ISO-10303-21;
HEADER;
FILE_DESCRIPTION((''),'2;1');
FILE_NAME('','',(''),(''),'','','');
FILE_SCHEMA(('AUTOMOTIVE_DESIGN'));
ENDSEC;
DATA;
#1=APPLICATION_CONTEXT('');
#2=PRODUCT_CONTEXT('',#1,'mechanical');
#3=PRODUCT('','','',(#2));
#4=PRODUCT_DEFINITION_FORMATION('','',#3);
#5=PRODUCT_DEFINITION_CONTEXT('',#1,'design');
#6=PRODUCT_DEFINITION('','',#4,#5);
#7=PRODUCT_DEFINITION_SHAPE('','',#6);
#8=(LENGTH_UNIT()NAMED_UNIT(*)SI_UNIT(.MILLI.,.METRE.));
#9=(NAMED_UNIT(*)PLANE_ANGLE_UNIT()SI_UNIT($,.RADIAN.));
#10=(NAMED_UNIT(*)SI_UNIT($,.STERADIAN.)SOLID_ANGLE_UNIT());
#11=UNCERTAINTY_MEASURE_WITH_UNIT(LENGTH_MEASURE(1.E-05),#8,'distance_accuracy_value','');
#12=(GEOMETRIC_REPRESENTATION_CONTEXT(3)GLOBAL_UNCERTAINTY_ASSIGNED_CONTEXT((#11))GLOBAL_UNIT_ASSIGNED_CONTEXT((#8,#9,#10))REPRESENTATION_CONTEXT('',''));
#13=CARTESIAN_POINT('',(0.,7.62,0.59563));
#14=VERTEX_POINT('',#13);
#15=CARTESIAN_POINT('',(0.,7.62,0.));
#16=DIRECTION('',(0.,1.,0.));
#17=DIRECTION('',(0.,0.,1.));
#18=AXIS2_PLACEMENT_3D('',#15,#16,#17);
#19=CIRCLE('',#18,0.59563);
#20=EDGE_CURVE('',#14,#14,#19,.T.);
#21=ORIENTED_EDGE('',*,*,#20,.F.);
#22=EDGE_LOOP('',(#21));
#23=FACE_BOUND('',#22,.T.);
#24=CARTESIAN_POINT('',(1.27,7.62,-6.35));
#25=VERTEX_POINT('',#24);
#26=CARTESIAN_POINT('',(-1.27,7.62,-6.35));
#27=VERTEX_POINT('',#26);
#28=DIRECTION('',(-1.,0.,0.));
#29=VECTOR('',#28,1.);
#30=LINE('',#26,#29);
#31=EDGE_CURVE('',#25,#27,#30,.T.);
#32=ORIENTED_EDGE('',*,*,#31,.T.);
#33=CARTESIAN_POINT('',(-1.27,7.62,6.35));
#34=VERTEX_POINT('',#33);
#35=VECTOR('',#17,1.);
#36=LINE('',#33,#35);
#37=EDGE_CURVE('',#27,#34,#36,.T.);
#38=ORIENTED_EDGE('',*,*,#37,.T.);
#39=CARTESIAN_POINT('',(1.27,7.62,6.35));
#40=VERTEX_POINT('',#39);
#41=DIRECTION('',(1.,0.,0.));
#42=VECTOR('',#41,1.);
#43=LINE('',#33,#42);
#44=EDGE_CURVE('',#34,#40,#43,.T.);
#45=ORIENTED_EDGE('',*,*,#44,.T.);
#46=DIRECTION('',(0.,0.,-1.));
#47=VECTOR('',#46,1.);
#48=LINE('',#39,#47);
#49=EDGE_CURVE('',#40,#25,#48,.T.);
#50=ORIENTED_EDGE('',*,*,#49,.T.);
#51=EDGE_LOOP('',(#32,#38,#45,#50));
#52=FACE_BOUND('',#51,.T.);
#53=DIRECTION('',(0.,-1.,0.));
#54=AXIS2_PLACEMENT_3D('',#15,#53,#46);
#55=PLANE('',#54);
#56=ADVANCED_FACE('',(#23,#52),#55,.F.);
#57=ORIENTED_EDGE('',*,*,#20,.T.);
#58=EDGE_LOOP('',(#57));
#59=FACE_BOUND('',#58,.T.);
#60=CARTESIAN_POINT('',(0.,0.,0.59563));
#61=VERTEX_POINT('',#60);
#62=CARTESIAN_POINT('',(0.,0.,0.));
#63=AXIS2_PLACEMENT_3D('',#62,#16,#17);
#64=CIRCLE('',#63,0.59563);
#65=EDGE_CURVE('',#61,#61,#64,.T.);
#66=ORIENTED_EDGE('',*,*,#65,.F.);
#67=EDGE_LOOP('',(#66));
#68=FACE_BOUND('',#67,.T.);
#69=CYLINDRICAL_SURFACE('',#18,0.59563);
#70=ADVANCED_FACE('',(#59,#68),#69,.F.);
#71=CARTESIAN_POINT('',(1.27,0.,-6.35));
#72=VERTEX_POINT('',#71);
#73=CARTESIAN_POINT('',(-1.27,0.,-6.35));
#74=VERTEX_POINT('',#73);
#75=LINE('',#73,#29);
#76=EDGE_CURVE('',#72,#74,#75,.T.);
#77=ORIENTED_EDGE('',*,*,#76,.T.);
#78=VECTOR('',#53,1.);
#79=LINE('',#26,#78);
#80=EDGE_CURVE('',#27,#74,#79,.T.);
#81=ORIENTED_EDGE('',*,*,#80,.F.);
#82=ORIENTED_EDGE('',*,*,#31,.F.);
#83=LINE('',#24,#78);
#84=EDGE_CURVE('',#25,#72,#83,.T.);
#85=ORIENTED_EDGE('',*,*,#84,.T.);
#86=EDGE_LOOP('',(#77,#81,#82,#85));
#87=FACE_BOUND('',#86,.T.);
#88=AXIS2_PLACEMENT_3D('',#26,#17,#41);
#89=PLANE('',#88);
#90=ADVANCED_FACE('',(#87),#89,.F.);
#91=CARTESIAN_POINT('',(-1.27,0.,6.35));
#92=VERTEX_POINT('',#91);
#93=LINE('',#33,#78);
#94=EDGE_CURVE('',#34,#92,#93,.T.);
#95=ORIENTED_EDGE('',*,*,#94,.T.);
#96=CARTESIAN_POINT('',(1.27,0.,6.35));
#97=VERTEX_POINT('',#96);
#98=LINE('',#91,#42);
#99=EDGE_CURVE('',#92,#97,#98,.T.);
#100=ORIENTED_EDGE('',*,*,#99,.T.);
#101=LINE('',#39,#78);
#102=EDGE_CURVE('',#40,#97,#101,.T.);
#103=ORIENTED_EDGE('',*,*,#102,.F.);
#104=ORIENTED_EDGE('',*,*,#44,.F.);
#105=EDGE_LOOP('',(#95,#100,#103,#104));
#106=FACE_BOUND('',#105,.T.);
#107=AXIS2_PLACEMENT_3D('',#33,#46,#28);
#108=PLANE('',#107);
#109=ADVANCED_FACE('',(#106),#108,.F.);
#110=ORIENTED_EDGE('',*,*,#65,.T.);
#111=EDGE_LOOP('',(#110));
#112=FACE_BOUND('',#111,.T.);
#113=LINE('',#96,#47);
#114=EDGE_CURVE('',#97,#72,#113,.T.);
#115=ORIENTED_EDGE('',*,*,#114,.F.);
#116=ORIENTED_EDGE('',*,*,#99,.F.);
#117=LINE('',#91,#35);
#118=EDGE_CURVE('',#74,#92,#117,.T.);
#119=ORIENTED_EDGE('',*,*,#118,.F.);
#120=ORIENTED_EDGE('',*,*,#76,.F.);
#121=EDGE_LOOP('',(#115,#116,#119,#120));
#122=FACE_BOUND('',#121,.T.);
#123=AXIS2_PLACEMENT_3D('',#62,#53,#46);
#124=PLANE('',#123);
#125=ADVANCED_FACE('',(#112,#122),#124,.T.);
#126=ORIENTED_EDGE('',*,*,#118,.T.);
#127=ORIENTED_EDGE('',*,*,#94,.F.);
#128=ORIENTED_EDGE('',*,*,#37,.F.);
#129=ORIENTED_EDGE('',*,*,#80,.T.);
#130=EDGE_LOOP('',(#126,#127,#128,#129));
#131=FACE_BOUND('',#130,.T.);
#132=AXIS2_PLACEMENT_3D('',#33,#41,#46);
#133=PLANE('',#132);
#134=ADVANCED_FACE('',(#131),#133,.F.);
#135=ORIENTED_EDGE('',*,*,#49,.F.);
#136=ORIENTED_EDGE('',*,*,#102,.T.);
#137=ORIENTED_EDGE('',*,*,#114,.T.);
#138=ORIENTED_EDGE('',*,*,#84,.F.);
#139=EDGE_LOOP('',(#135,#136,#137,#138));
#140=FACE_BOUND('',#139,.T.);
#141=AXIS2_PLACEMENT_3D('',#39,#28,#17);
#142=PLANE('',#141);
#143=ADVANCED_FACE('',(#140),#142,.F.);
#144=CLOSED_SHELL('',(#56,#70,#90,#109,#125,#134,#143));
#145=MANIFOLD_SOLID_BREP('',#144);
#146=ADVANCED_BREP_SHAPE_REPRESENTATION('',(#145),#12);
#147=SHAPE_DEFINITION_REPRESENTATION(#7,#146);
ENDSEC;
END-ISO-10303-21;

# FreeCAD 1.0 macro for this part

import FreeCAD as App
import Part
import Sketcher
from FreeCAD import Vector
Q = App.Units.Quantity


def add_polygon(sketch, points):
    """Adds a closed chain of lines whose ends are joined by coincident constraints."""
    first, n = sketch.GeometryCount, len(points)
    for a, b in zip(points, points[1:] + points[:1]):
        sketch.addGeometry(Part.LineSegment(App.Vector(*a, 0), App.Vector(*b, 0)), False)
    for i in range(n):
        sketch.addConstraint(Sketcher.Constraint("Coincident", first + i, 2, first + (i + 1) % n, 1))

doc = App.newDocument("Part")
body = doc.addObject("PartDesign::Body", "Body")

# Sketch on XZ plane
sketch1 = doc.addObject("Sketcher::SketchObject", "Sketch")
body.addObject(sketch1)
sketch1.AttachmentSupport = (doc.XZ_Plane, [""])
sketch1.MapMode = "FlatFace"
add_polygon(sketch1, [(-1.27, -6.35), (-1.27, 6.35), (1.27, 6.35), (1.27, -6.35)])  # lines 0-3
sketch1.addConstraint(Sketcher.Constraint("Vertical", 0))
sketch1.addConstraint(Sketcher.Constraint("Horizontal", 1))
sketch1.addConstraint(Sketcher.Constraint("Vertical", 2))
sketch1.addConstraint(Sketcher.Constraint("Horizontal", 3))
sketch1.addConstraint(Sketcher.Constraint("Symmetric", 0, 2, 2, 2, -1, 1))
sketch1.addConstraint(Sketcher.Constraint("DistanceX", 1, 1, 1, 2, Q("0.1 in")))
sketch1.addConstraint(Sketcher.Constraint("DistanceY", 0, 1, 0, 2, Q("0.5 in")))
pad1 = doc.addObject("PartDesign::Pad", "Pad")
body.addObject(pad1)
pad1.Profile = sketch1
pad1.Length = Q("0.3 in")
pad1.Reversed = True

# Sketch on XZ plane
sketch2 = doc.addObject("Sketcher::SketchObject", "Sketch001")
body.addObject(sketch2)
sketch2.AttachmentSupport = (doc.XZ_Plane, [""])
sketch2.MapMode = "FlatFace"
sketch2.AttachmentOffset = App.Placement(Vector(0, 0, -0.3 * 25.4), App.Rotation())
sketch2.addGeometry(Part.Circle(Vector(0, 0, 0), Vector(0, 0, 1), 0.59563), False)
sketch2.addConstraint(Sketcher.Constraint("Coincident", 0, 3, -1, 1))
sketch2.addConstraint(Sketcher.Constraint("Diameter", 0, Q("0.0469 in")))
doc.recompute()
hole = doc.addObject("PartDesign::Hole", "Hole")
body.addObject(hole)
hole.Profile = sketch2
hole.ThreadType = "None"
hole.Diameter = Q("0.0469 in")
hole.DepthType = "ThroughAll"
hole.Reversed = True

doc.recompute()
